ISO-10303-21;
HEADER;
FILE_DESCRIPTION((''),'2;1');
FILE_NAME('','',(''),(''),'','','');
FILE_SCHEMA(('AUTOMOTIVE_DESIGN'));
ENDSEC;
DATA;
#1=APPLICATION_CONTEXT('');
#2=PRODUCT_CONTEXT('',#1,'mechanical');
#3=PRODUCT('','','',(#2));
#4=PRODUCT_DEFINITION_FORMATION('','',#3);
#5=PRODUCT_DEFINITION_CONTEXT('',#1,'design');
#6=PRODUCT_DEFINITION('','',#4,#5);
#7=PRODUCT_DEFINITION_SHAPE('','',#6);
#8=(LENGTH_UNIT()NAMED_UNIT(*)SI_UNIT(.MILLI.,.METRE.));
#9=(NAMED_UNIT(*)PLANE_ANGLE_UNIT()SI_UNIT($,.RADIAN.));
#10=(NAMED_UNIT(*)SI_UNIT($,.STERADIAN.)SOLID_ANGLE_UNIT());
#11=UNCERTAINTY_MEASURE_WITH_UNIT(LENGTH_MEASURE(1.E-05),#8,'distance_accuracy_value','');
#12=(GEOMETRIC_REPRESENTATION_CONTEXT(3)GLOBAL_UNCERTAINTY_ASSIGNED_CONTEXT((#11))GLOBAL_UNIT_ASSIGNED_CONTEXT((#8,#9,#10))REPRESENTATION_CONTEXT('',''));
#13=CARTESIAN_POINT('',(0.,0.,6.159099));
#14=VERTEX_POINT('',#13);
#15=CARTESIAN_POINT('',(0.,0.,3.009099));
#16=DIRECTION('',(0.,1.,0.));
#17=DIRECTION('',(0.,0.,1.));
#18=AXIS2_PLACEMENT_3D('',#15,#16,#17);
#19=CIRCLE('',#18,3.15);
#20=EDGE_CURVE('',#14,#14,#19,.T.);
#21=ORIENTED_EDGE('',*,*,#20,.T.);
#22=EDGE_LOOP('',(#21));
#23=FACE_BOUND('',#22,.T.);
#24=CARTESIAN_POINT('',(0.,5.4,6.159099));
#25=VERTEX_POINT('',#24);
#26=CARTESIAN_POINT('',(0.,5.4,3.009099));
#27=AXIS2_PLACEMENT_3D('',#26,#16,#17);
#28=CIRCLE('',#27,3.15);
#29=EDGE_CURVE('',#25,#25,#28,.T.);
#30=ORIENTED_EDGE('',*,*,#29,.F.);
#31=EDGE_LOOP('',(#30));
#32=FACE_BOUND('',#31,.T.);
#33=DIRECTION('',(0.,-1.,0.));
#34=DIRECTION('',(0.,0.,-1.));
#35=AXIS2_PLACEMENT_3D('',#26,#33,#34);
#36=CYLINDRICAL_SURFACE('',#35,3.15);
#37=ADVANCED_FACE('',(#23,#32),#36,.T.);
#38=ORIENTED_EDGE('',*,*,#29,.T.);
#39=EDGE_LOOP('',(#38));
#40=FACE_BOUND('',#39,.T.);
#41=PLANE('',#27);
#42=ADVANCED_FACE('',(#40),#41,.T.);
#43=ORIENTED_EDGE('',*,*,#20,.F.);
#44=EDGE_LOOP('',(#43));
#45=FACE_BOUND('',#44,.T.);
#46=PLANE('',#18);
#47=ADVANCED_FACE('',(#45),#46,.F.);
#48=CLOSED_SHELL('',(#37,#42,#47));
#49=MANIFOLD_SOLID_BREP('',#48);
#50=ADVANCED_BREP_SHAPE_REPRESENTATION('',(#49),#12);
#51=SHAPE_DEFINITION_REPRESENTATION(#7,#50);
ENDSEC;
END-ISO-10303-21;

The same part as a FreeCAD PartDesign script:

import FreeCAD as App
import Part
import Sketcher
from FreeCAD import Vector
Q = App.Units.Quantity

doc = App.newDocument("Part")
params = doc.addObject("Spreadsheet::Sheet", "Params")
for row, (alias, value) in enumerate([
    ("sketch1_diameter", "6.3 mm"),
    ("pad1_length", "5.4 mm"),
], start=1):
    params.set(f"A{row}", alias)
    params.set(f"B{row}", "=" + value)
    params.setAlias(f"B{row}", alias)

body = doc.addObject("PartDesign::Body", "Body")

# Sketch on XZ plane
sketch1 = body.newObject("Sketcher::SketchObject", "Sketch")
sketch1.AttachmentSupport = (doc.getObject("XZ_Plane"), [""])
sketch1.MapMode = "FlatFace"
sketch1.addGeometry(Part.Circle(Vector(0, 3.009099, 0), Vector(0, 0, 1), 3.15), False)
sketch1.addConstraint([
    Sketcher.Constraint("PointOnObject", 0, 3, -2),
    Sketcher.Constraint("Diameter", 0, Q("6.3 mm")),
    Sketcher.Constraint("DistanceY", -1, 1, 0, 3, Q("3.009099 mm")),
])
sketch1.setExpression("Constraints[1]", "Params.sketch1_diameter")
pad1 = body.newObject("PartDesign::Pad", "Pad")
pad1.Profile = sketch1
pad1.setExpression("Length", "Params.pad1_length")
pad1.Reversed = True

doc.recompute()
